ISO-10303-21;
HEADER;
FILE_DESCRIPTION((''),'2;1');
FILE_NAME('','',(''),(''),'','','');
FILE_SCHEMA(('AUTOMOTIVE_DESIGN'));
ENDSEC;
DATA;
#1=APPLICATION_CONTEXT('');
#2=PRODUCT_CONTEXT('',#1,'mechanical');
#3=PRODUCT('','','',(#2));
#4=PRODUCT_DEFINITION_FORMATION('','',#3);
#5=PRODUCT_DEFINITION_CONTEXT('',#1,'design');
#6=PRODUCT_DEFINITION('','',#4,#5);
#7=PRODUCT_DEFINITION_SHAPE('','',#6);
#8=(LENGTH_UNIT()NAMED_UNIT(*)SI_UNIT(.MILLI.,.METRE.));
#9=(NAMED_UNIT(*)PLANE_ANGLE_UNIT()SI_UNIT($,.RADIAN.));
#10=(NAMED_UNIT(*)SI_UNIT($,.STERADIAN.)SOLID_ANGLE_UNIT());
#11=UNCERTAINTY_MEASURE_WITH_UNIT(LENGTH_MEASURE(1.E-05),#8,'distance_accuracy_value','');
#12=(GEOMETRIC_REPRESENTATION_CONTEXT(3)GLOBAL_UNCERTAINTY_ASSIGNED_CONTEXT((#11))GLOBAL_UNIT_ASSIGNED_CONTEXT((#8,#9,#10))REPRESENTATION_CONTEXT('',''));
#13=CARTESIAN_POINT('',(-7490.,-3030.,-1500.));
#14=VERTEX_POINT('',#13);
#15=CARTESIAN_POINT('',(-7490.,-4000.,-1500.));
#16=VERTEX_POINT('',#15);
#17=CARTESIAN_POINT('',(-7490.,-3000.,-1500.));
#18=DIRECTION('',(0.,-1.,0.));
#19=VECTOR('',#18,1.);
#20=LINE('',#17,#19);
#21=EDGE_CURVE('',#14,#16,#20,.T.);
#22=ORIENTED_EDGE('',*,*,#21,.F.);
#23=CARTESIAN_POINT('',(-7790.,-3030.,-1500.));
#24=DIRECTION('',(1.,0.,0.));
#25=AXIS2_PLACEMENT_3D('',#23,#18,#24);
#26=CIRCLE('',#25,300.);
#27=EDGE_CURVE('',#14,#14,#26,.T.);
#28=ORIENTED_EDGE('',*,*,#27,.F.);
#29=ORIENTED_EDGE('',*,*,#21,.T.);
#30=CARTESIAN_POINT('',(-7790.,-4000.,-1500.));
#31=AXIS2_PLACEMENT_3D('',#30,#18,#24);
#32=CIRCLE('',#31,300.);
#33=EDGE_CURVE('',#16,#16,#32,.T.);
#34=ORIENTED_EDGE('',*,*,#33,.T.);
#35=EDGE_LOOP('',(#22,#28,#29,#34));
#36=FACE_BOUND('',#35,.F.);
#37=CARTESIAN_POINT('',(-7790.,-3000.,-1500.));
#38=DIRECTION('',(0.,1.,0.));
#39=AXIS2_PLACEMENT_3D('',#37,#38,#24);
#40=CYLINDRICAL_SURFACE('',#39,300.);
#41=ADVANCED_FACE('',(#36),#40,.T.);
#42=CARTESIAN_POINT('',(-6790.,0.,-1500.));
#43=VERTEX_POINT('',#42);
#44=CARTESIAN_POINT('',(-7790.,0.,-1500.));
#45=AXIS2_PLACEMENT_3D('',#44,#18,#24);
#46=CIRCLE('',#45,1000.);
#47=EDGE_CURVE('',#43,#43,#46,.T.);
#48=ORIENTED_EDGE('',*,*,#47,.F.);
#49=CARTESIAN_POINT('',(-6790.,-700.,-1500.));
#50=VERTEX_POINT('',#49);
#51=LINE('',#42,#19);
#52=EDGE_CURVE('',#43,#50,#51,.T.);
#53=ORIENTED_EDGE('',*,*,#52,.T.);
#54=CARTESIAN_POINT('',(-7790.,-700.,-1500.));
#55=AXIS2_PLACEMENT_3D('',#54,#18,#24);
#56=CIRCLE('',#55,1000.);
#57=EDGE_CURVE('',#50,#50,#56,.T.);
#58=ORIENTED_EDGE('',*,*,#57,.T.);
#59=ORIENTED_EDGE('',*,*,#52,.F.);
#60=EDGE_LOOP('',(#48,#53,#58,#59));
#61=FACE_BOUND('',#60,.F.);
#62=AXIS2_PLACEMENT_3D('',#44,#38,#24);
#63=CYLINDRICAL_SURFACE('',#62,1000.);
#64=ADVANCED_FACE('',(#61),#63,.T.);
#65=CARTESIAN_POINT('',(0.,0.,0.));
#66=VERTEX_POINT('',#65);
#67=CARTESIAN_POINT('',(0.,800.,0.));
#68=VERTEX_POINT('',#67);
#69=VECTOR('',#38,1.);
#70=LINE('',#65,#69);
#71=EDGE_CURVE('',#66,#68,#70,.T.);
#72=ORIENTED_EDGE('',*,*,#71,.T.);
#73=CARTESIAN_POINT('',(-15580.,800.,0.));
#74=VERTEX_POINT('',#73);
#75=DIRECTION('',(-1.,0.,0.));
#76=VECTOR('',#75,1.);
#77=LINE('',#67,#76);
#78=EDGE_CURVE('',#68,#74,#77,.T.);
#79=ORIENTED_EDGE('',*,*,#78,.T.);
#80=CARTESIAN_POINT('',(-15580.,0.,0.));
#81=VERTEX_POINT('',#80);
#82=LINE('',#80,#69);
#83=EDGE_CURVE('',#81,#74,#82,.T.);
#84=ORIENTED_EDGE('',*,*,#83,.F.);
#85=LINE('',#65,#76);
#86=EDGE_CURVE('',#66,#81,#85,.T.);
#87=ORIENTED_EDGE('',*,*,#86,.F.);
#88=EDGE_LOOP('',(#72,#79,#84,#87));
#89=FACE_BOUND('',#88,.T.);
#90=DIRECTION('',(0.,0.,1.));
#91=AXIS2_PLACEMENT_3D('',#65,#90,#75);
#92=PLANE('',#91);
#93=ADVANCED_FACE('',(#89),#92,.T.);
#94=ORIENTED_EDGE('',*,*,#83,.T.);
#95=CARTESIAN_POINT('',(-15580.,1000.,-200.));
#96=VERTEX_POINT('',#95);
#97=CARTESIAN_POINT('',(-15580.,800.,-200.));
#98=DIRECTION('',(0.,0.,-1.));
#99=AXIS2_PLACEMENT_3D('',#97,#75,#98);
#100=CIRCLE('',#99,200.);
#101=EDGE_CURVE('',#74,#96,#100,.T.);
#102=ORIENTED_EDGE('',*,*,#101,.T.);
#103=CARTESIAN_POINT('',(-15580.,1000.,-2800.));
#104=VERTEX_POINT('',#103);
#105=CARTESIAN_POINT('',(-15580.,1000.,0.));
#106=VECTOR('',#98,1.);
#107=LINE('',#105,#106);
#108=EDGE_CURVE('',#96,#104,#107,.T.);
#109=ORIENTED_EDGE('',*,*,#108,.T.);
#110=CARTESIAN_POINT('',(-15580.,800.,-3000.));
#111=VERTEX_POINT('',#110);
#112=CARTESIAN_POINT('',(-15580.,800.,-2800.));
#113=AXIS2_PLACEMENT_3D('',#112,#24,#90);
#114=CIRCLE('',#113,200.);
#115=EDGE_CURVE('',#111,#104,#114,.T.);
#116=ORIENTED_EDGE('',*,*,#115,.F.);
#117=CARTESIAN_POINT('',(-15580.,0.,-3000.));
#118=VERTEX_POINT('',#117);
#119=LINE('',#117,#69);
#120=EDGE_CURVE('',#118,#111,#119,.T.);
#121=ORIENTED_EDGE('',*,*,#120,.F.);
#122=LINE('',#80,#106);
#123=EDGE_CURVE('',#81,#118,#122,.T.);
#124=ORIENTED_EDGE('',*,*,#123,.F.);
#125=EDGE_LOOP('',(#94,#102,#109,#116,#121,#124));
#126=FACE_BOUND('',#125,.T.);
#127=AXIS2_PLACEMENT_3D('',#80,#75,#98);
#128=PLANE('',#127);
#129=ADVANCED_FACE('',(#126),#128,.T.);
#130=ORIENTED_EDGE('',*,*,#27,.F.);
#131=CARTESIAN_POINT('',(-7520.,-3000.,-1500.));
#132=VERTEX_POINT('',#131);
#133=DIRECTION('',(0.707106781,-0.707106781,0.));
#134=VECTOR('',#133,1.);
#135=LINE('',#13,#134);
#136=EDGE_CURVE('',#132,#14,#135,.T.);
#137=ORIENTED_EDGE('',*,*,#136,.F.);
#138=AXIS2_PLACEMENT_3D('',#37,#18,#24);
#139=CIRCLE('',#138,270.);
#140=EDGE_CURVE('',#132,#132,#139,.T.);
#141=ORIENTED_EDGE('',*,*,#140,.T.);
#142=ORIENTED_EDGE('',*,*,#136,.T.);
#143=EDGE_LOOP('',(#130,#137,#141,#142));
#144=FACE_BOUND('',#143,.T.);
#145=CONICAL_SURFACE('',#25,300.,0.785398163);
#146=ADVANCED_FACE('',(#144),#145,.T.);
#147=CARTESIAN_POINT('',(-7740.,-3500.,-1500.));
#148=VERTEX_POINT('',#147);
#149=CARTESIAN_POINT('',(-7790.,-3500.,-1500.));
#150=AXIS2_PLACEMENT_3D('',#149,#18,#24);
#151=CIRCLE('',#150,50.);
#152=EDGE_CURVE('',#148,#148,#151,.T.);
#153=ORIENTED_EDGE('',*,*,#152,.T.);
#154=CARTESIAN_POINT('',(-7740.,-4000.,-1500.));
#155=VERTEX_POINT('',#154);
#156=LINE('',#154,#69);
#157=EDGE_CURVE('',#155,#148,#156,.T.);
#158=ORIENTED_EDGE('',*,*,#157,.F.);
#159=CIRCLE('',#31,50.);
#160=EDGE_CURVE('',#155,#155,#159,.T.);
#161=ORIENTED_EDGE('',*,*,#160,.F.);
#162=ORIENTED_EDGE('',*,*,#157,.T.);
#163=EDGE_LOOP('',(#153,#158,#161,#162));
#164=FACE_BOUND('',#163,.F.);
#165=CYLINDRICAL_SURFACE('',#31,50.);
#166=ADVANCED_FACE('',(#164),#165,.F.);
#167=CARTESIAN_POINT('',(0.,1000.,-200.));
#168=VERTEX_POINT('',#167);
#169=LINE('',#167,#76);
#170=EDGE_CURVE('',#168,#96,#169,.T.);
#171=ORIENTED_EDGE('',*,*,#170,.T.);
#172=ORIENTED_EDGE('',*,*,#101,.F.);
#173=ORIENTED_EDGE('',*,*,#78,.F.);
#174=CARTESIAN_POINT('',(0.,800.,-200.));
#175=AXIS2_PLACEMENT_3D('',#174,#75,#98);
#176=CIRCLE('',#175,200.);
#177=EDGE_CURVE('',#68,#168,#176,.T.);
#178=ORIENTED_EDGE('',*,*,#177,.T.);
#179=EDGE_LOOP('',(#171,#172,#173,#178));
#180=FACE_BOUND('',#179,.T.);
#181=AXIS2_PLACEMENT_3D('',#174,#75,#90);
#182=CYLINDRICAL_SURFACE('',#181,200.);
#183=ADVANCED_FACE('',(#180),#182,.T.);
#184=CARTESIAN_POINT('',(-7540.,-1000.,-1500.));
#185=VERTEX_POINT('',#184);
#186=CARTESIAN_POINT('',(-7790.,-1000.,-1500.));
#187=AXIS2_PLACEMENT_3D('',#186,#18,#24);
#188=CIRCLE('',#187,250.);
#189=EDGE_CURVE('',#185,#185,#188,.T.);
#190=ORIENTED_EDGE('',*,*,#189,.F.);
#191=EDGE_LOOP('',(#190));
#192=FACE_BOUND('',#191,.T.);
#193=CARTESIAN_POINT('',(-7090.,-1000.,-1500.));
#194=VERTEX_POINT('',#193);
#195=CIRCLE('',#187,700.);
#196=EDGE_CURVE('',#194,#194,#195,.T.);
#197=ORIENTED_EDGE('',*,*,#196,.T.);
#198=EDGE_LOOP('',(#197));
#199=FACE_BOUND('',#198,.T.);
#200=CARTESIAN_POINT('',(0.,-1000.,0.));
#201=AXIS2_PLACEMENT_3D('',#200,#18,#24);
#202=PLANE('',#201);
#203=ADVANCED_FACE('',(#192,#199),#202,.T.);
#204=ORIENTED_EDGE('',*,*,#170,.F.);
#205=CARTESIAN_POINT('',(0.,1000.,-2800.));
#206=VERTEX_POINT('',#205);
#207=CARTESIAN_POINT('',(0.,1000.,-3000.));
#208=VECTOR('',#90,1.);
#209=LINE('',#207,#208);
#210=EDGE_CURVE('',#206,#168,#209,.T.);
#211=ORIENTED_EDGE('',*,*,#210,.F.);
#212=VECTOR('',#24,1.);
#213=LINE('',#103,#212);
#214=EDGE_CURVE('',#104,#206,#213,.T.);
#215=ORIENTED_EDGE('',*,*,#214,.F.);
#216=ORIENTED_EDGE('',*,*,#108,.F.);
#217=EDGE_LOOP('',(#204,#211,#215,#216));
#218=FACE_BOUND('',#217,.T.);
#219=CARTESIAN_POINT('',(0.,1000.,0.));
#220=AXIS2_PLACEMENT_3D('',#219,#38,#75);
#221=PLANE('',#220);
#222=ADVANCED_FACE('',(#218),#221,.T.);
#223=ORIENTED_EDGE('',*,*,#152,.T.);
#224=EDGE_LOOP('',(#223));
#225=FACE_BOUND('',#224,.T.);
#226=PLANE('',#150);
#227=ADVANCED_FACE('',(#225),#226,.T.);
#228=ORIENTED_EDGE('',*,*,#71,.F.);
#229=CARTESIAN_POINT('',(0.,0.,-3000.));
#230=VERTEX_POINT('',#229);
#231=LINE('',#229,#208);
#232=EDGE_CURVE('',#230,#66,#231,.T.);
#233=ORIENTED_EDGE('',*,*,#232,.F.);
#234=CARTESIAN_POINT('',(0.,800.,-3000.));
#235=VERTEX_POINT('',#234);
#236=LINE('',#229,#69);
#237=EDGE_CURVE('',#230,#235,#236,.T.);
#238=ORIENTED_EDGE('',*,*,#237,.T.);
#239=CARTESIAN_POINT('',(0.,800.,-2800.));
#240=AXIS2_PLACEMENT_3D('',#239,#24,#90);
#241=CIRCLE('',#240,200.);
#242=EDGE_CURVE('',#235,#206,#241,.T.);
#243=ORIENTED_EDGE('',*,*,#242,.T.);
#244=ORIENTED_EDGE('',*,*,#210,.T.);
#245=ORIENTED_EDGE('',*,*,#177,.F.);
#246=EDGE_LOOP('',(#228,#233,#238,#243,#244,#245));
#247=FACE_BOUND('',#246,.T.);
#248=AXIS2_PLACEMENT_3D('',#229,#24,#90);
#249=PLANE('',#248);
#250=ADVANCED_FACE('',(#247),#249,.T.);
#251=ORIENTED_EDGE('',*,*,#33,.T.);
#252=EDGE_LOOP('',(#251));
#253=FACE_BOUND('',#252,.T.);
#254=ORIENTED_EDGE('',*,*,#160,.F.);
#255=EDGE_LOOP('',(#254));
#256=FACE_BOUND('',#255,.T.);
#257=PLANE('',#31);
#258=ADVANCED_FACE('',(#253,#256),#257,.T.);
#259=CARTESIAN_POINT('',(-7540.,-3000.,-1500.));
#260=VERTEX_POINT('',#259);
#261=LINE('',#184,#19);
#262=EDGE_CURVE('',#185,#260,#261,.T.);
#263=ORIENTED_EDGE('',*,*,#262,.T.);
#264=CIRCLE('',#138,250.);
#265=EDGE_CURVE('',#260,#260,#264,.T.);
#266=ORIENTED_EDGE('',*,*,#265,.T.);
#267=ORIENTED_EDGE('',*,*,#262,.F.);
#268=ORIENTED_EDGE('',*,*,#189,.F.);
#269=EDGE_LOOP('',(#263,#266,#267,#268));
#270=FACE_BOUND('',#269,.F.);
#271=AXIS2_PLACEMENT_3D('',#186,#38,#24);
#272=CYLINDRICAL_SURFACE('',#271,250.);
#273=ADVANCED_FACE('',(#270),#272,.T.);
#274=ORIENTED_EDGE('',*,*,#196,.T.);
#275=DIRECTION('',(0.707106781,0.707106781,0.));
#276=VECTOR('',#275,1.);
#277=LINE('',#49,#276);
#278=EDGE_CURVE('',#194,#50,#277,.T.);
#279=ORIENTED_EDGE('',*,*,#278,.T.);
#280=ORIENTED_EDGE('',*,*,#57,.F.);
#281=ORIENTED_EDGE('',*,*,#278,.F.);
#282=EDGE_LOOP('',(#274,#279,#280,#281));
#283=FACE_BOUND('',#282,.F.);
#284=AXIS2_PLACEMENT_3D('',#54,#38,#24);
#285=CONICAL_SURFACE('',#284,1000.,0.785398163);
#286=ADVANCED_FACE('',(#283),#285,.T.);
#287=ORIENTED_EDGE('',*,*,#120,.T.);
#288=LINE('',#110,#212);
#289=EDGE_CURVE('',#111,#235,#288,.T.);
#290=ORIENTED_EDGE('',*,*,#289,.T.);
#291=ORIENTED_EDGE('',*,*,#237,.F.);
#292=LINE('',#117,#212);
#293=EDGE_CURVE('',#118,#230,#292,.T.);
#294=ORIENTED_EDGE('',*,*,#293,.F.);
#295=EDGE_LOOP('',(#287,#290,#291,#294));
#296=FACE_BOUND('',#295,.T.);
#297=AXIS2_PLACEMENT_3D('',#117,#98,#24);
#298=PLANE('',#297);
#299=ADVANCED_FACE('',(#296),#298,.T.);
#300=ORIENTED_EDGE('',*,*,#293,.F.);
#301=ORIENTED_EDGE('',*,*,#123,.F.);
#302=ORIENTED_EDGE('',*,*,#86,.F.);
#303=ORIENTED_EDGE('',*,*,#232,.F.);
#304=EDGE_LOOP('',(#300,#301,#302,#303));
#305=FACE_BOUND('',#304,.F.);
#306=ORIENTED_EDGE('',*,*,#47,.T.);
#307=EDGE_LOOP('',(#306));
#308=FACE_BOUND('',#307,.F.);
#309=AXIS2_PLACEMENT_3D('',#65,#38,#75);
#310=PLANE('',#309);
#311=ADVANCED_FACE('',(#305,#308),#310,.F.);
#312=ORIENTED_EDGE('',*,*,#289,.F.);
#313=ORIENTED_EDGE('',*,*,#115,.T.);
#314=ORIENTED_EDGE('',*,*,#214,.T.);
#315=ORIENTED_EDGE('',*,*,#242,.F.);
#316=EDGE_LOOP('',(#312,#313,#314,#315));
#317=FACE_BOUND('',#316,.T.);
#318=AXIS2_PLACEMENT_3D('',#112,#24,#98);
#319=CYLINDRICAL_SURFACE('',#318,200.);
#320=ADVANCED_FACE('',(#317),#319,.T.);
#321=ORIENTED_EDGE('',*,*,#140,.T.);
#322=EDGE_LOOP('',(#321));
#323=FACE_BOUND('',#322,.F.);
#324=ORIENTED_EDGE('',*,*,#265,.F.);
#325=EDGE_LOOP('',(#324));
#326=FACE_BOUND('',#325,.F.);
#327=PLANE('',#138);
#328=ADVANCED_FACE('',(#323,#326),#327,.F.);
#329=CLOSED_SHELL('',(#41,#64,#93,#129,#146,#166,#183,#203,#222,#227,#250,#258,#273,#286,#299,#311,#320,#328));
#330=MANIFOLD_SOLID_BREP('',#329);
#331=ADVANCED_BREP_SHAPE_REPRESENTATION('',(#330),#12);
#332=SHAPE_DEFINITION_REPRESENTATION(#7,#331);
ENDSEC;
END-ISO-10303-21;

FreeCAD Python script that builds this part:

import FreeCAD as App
import Part
import Sketcher

V = App.Vector


def edges_at(feature, points):
    """Names of the edges that pass closest to the given points."""
    edges = feature.Shape.Edges
    near = lambda p: min(range(len(edges)), key=lambda i: edges[i].distToShape(Part.Vertex(*p))[0])
    return sorted({f"Edge{near(p) + 1}" for p in points})


def add_polygon(sketch, points):
    """Adds a closed chain of lines whose ends are joined by coincident constraints."""
    first, n = sketch.GeometryCount, len(points)
    for a, b in zip(points, points[1:] + points[:1]):
        sketch.addGeometry(Part.LineSegment(App.Vector(*a, 0), App.Vector(*b, 0)), False)
    for i in range(n):
        sketch.addConstraint(Sketcher.Constraint("Coincident", first + i, 2, first + (i + 1) % n, 1))

doc = App.newDocument("Part")
body = doc.addObject("PartDesign::Body", "Body")

# Sketch on XZ plane
sketch1 = body.newObject("Sketcher::SketchObject", "Sketch")
sketch1.AttachmentSupport = (doc.getObject("XZ_Plane"), [""])
sketch1.MapMode = "FlatFace"
add_polygon(sketch1, [(-15580, 0), (0, 0), (0, -3000), (-15580, -3000)])  # lines 0-3
sketch1.addConstraint([
    Sketcher.Constraint("Horizontal", 0),
    Sketcher.Constraint("Vertical", 1),
    Sketcher.Constraint("Horizontal", 2),
    Sketcher.Constraint("Vertical", 3),
    Sketcher.Constraint("Coincident", 0, 2, -1, 1),
    Sketcher.Constraint("DistanceX", 0, 1, 0, 2, 15580.0),
    Sketcher.Constraint("DistanceY", 1, 2, 1, 1, 3000.0),
])
pad1 = body.newObject("PartDesign::Pad", "Pad")
pad1.Profile = sketch1
pad1.Length = 1000
pad1.Reversed = True
doc.recompute()

fillet = body.newObject("PartDesign::Fillet", "Fillet")
fillet.Base = (pad1, edges_at(pad1, [(-7790, 1000, 0), (-7790, 1000, -3000)]))
fillet.Radius = 200

# Sketch on XZ plane
sketch2 = body.newObject("Sketcher::SketchObject", "Sketch001")
sketch2.AttachmentSupport = (doc.getObject("XZ_Plane"), [""])
sketch2.MapMode = "FlatFace"
sketch2.addGeometry(Part.Circle(V(-7790, -1500, 0), V(0, 0, 1), 1000), False)
sketch2.addConstraint([
    Sketcher.Constraint("Diameter", 0, 2000.0),
    Sketcher.Constraint("DistanceX", 0, 3, -1, 1, 7790.0),
    Sketcher.Constraint("DistanceY", 0, 3, -1, 1, 1500.0),
])
pad2 = body.newObject("PartDesign::Pad", "Pad001")
pad2.Profile = sketch2
pad2.Length = 1000

# Sketch on XZ plane
sketch3 = body.newObject("Sketcher::SketchObject", "Sketch002")
sketch3.AttachmentSupport = (doc.getObject("XZ_Plane"), [""])
sketch3.MapMode = "FlatFace"
sketch3.AttachmentOffset = App.Placement(V(0, 0, 1000), App.Rotation())
sketch3.addGeometry(Part.Circle(V(-7790, -1500, 0), V(0, 0, 1), 250), False)
sketch3.addConstraint([
    Sketcher.Constraint("Diameter", 0, 500.0),
    Sketcher.Constraint("DistanceX", 0, 3, -1, 1, 7790.0),
    Sketcher.Constraint("DistanceY", 0, 3, -1, 1, 1500.0),
])
pad3 = body.newObject("PartDesign::Pad", "Pad002")
pad3.Profile = sketch3
pad3.Length = 2000

# Sketch on XZ plane
sketch4 = body.newObject("Sketcher::SketchObject", "Sketch003")
sketch4.AttachmentSupport = (doc.getObject("XZ_Plane"), [""])
sketch4.MapMode = "FlatFace"
sketch4.AttachmentOffset = App.Placement(V(0, 0, 3000), App.Rotation())
sketch4.addGeometry(Part.Circle(V(-7790, -1500, 0), V(0, 0, 1), 300), False)
sketch4.addConstraint([
    Sketcher.Constraint("Diameter", 0, 600.0),
    Sketcher.Constraint("DistanceX", 0, 3, -1, 1, 7790.0),
    Sketcher.Constraint("DistanceY", 0, 3, -1, 1, 1500.0),
])
pad4 = body.newObject("PartDesign::Pad", "Pad003")
pad4.Profile = sketch4
pad4.Length = 1000

# Sketch on XZ plane
sketch5 = body.newObject("Sketcher::SketchObject", "Sketch004")
sketch5.AttachmentSupport = (doc.getObject("XZ_Plane"), [""])
sketch5.MapMode = "FlatFace"
sketch5.AttachmentOffset = App.Placement(V(0, 0, 4000), App.Rotation())
sketch5.addGeometry(Part.Circle(V(-7790, -1500, 0), V(0, 0, 1), 50), False)
sketch5.addConstraint([
    Sketcher.Constraint("Diameter", 0, 100.0),
    Sketcher.Constraint("DistanceX", 0, 3, -1, 1, 7790.0),
    Sketcher.Constraint("DistanceY", 0, 3, -1, 1, 1500.0),
])
pocket1 = body.newObject("PartDesign::Pocket", "Pocket")
pocket1.Profile = sketch5
pocket1.Length = 500
doc.recompute()

chamfer = body.newObject("PartDesign::Chamfer", "Chamfer")
chamfer.Base = (pocket1, edges_at(pocket1, [(-8090, -3000, -1500)]))
chamfer.Size = 30
doc.recompute()

chamfer2 = body.newObject("PartDesign::Chamfer", "Chamfer001")
chamfer2.Base = (chamfer, edges_at(chamfer, [(-8790, -1000, -1500)]))
chamfer2.Size = 300

doc.recompute()
